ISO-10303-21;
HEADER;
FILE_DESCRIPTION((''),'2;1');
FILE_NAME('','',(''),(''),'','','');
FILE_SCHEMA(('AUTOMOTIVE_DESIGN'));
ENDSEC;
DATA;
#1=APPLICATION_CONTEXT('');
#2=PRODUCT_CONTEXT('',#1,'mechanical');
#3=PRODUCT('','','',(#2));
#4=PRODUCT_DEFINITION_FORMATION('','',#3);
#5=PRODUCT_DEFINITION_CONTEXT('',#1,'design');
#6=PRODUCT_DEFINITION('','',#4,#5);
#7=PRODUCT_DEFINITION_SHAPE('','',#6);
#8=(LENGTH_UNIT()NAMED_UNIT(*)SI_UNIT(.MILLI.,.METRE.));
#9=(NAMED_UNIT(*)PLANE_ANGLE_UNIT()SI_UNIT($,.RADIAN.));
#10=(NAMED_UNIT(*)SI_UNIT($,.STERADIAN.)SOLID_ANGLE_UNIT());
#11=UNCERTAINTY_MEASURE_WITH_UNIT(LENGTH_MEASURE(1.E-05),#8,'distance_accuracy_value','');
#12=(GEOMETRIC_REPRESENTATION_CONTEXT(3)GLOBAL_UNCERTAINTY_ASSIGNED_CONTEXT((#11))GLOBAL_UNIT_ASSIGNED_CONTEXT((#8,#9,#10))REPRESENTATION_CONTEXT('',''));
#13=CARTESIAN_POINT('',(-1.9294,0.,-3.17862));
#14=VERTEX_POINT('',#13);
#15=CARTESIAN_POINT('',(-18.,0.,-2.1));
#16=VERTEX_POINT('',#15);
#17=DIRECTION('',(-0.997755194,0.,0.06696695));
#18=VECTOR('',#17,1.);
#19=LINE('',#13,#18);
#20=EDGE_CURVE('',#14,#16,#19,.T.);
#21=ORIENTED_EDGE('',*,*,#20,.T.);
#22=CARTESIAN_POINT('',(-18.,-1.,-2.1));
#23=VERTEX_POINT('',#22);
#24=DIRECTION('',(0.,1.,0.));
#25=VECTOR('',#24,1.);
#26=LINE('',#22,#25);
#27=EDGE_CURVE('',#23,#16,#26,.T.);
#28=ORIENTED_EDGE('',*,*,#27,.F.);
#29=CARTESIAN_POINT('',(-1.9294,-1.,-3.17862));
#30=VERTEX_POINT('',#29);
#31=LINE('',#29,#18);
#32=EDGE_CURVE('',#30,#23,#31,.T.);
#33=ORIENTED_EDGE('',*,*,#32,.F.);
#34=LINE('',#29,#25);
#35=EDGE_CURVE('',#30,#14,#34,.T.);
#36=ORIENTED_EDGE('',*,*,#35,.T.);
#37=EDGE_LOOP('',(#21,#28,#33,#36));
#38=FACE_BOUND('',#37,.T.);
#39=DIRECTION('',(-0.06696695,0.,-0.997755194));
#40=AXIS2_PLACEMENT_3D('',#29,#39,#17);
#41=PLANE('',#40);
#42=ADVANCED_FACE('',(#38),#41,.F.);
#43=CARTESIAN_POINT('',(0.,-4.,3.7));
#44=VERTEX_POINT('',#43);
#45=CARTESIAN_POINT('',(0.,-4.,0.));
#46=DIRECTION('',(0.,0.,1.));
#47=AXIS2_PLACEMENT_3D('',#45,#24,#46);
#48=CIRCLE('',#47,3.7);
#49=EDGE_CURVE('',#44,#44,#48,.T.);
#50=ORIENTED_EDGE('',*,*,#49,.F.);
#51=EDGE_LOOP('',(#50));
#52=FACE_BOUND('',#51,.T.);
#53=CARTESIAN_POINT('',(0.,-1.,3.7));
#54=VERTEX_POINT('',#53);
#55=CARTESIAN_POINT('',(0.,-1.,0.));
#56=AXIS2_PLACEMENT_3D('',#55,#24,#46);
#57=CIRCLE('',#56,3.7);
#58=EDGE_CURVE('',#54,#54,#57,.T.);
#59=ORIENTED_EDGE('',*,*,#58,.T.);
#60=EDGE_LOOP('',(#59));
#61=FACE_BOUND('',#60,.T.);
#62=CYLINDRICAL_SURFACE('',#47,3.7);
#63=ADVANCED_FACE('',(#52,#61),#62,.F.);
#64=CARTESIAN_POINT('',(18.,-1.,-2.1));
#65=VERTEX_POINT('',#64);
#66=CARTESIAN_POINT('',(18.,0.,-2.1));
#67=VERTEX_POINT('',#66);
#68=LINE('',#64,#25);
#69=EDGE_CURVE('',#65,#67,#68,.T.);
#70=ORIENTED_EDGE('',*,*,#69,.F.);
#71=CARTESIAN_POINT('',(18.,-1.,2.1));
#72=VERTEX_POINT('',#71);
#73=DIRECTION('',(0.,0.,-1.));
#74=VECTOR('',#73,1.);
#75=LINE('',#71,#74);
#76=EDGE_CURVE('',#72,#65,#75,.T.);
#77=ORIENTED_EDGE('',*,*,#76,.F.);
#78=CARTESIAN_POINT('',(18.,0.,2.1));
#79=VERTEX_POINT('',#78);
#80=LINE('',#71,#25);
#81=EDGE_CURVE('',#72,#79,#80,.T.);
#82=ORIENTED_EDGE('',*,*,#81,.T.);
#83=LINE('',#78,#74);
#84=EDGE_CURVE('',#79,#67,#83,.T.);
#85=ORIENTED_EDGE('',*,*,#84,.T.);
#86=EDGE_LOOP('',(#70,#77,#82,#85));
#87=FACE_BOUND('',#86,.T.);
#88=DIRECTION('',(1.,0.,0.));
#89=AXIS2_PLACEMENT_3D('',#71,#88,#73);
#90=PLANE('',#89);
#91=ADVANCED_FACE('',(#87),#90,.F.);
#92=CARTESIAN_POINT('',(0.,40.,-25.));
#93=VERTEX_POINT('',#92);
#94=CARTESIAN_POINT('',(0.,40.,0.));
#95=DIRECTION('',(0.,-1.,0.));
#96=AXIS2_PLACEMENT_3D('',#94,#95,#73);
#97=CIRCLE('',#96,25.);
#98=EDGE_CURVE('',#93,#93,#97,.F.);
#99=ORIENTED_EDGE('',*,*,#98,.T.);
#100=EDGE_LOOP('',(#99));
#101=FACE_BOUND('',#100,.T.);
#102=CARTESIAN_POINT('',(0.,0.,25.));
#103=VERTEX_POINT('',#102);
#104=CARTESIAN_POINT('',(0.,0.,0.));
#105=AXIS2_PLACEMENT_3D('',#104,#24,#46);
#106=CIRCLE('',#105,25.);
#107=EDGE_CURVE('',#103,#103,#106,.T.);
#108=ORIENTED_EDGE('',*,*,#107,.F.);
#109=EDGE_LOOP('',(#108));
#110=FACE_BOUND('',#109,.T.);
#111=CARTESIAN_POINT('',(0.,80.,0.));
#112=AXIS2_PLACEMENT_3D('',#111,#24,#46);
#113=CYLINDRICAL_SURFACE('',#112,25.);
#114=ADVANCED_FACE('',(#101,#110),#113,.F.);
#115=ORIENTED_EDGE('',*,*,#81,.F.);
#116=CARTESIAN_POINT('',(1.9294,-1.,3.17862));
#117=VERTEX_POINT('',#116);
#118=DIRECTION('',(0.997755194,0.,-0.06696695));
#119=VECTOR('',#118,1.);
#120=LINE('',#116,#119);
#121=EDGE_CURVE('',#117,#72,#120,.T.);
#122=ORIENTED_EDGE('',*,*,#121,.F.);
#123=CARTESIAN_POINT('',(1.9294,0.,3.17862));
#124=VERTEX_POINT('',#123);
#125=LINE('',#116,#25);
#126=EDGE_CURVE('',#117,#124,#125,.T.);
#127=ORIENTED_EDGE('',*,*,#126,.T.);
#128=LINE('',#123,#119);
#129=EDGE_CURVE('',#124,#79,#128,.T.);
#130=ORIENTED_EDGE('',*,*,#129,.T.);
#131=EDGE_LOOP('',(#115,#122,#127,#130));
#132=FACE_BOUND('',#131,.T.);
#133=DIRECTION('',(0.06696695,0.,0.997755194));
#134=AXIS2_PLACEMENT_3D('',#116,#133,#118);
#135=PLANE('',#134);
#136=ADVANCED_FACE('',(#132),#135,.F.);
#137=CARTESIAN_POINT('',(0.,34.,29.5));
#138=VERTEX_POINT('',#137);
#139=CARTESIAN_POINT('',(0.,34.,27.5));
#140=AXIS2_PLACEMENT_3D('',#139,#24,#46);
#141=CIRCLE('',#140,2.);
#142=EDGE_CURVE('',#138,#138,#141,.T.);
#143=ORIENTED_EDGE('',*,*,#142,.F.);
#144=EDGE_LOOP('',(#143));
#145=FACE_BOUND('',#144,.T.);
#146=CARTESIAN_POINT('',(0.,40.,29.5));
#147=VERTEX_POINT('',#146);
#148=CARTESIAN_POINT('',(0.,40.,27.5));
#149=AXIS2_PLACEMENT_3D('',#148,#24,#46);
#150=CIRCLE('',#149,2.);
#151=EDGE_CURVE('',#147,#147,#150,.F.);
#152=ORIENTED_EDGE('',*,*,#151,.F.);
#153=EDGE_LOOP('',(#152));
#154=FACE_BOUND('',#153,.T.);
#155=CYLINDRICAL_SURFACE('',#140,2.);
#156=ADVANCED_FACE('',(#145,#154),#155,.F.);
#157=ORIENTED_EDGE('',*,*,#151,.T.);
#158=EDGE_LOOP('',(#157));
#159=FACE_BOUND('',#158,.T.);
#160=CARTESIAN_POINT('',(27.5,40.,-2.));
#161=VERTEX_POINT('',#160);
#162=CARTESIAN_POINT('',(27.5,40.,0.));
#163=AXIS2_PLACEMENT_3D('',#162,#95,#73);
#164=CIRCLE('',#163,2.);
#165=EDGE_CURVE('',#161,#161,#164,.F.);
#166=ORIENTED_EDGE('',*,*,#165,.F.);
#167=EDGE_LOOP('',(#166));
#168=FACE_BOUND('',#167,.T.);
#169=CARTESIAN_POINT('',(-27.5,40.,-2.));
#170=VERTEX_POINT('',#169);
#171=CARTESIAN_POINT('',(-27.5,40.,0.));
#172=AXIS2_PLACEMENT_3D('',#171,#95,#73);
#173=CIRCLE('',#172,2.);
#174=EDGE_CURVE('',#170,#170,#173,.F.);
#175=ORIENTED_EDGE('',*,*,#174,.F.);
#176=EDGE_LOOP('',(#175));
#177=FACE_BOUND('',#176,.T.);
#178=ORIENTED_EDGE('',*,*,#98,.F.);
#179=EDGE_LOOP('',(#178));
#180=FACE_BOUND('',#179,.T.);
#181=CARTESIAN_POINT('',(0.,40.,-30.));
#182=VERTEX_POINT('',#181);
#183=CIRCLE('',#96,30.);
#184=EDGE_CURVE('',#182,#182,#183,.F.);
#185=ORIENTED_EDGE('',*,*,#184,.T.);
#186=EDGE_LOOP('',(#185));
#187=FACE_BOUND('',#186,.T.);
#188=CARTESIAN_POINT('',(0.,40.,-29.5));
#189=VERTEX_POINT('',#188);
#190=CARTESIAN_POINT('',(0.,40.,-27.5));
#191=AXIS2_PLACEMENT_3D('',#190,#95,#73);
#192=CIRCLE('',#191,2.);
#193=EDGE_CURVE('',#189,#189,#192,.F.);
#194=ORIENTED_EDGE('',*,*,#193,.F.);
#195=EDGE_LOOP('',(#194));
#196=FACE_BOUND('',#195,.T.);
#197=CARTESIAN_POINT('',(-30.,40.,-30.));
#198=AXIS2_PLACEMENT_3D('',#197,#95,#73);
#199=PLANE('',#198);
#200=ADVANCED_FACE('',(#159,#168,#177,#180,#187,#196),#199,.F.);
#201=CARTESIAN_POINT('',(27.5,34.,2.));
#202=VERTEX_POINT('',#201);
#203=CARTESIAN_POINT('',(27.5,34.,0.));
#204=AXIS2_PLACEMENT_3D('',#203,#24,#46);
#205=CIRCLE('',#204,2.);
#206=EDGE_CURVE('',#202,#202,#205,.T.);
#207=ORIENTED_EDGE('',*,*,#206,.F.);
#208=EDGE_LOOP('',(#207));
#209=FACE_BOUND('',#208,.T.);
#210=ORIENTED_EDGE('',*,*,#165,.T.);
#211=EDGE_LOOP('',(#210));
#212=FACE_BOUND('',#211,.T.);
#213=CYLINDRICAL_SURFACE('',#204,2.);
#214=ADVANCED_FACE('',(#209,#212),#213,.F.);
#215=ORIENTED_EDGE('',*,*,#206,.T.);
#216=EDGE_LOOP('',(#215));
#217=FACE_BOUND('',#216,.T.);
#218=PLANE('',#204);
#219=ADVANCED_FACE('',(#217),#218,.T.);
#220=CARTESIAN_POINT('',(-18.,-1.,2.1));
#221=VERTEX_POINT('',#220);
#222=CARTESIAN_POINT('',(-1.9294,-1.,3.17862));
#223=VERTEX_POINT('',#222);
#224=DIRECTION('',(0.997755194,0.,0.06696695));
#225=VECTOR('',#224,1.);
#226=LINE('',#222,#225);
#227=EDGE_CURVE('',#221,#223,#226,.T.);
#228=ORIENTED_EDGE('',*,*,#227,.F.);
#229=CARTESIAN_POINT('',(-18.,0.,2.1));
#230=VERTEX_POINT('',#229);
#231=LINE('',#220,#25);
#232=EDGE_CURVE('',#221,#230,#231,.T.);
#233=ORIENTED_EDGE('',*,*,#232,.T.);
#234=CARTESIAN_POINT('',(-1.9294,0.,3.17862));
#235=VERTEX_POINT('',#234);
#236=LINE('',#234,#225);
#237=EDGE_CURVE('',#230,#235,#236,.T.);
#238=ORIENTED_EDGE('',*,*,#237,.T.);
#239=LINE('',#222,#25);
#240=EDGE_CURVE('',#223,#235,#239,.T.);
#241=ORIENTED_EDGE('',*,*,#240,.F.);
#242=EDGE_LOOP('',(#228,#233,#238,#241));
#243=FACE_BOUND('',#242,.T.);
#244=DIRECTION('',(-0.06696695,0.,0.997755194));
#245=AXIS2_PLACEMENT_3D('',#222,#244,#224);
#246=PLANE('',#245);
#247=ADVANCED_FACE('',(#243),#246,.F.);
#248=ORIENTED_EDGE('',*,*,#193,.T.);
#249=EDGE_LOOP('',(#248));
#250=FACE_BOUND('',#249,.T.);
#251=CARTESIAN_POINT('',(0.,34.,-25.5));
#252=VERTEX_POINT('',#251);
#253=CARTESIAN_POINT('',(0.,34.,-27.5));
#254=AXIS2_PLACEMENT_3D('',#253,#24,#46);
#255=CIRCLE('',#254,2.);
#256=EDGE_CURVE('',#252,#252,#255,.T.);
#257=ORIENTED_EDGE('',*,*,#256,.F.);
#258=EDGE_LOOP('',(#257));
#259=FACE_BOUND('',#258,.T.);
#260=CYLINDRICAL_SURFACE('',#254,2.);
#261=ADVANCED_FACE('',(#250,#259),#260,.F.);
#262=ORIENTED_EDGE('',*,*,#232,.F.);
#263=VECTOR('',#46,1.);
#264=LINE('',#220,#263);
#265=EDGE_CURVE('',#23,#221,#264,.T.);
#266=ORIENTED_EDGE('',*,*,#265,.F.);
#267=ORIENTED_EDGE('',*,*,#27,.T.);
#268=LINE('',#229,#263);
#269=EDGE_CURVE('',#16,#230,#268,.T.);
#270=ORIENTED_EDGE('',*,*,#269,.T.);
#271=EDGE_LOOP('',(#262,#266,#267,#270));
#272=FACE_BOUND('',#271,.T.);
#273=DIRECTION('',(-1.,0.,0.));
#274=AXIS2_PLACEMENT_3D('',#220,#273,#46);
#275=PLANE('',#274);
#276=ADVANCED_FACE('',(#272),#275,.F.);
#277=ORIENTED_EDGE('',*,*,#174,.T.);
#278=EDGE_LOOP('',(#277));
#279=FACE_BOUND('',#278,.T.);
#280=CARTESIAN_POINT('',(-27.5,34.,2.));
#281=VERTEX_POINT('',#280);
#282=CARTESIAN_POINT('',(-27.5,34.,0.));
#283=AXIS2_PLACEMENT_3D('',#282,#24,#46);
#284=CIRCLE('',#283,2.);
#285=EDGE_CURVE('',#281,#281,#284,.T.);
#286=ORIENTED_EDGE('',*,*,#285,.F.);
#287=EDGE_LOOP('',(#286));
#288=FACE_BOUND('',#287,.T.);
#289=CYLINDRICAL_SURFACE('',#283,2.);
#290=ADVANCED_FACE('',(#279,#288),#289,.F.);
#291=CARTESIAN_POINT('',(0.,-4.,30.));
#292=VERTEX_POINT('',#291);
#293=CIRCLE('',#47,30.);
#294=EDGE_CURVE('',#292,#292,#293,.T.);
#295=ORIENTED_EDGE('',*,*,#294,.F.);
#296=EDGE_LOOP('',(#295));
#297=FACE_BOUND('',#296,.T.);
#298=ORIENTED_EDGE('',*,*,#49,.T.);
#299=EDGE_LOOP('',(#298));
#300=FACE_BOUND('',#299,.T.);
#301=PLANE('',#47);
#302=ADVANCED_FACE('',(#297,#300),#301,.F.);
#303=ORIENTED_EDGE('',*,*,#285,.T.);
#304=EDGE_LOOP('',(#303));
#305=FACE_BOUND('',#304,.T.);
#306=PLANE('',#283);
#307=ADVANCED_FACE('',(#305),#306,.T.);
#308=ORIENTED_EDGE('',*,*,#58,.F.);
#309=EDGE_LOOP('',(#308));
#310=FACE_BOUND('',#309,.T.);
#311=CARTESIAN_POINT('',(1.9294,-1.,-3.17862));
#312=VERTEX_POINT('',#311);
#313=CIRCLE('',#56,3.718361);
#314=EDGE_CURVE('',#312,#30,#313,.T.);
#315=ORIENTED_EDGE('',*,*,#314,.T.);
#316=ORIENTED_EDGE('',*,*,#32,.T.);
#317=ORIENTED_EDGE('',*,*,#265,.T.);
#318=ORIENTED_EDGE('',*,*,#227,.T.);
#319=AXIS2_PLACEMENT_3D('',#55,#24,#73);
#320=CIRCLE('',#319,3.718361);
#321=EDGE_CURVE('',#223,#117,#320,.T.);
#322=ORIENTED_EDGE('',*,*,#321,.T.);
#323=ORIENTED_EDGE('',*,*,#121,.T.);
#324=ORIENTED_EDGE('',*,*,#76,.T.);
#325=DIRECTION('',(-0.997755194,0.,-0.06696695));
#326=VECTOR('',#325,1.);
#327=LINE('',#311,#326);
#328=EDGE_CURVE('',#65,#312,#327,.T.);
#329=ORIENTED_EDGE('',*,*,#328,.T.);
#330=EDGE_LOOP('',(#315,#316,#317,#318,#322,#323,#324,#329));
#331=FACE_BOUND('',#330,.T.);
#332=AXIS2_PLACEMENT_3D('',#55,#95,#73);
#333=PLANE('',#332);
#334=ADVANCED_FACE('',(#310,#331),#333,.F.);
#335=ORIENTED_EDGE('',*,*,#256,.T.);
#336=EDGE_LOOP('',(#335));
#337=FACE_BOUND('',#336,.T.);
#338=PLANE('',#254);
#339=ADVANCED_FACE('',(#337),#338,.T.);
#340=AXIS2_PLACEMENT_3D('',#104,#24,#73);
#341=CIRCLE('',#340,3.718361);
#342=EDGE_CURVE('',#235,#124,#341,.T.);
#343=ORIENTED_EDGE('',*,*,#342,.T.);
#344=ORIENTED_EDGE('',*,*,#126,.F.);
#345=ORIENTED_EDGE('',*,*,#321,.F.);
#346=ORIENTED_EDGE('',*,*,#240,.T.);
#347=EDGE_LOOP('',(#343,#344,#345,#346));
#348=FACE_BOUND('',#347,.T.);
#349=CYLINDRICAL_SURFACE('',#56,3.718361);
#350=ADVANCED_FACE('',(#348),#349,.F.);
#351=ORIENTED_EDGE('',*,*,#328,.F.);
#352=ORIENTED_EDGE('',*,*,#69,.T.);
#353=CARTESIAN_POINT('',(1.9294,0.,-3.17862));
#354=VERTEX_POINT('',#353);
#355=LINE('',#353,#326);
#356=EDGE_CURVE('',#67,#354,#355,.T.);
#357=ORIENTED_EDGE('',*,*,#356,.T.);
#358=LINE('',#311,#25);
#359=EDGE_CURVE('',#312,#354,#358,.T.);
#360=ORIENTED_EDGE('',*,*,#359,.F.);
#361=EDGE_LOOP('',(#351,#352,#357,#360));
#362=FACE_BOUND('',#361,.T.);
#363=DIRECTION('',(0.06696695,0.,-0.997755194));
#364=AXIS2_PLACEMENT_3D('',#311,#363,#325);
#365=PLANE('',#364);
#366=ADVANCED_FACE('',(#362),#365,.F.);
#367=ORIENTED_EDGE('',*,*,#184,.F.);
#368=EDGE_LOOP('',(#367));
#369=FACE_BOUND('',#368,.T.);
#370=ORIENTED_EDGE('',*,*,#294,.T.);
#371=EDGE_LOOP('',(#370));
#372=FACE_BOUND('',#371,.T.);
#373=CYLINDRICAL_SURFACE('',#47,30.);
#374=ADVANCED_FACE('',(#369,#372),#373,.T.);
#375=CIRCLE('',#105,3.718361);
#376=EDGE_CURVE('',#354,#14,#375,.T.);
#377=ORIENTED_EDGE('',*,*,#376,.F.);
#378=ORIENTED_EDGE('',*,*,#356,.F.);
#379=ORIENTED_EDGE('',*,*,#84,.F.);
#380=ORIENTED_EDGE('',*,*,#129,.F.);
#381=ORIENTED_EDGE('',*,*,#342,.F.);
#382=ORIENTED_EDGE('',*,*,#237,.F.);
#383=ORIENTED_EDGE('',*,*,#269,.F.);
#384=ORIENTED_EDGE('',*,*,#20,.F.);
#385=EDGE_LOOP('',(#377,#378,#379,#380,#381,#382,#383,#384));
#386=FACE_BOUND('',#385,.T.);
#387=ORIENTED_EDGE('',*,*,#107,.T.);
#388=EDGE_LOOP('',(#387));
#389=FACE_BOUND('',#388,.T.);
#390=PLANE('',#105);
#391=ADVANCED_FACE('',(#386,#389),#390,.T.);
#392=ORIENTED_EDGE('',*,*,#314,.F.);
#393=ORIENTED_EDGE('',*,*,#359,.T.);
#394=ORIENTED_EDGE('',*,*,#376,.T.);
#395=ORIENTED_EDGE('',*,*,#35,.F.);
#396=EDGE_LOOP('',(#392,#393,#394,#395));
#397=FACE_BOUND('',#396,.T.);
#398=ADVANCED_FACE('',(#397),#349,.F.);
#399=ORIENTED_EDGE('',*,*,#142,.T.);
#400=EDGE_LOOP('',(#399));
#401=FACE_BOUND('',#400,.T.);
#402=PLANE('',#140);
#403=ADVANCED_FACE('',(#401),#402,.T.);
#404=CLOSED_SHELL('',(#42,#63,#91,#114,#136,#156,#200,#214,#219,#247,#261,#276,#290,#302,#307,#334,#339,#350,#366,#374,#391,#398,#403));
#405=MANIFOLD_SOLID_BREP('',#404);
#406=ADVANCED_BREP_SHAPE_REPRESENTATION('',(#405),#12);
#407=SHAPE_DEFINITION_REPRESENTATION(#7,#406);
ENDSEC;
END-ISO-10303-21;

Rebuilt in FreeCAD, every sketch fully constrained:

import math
import FreeCAD as App
import Part
import Sketcher
from FreeCAD import Vector


def add_polygon(sketch, points):
    """Adds a closed chain of lines whose ends are joined by coincident constraints."""
    first, n = sketch.GeometryCount, len(points)
    for a, b in zip(points, points[1:] + points[:1]):
        sketch.addGeometry(Part.LineSegment(App.Vector(*a, 0), App.Vector(*b, 0)), False)
    for i in range(n):
        sketch.addConstraint(Sketcher.Constraint("Coincident", first + i, 2, first + (i + 1) % n, 1))

doc = App.newDocument("Part")
params = doc.addObject("Spreadsheet::Sheet", "Params")
for row, (alias, value) in enumerate([
    ("sketch1_diameter", "60 mm"),
    ("pad1_length", "4 mm"),
    ("sketch2_height", "4.2 mm"),
    ("pocket1_length", "1 mm"),
    ("sketch3_diameter", "7.4 mm"),
    ("pocket2_length", "3 mm"),
    ("sketch4_width", "5 mm"),
    ("sketch4_height", "80 mm"),
    ("revolution_angle", "360 deg"),
    ("sketch5_diameter", "4 mm"),
    ("pocket3_length", "46 mm"),
    ("sketch6_width", "60 mm"),
    ("sketch6_height", "40 mm"),
    ("pocket4_length", "30 mm"),
], start=1):
    params.set(f"A{row}", alias)
    params.set(f"B{row}", "=" + value)
    params.setAlias(f"B{row}", alias)

body = doc.addObject("PartDesign::Body", "Body")

sketch1 = body.newObject("Sketcher::SketchObject", "Sketch")
sketch1.AttachmentSupport = (doc.getObject("XZ_Plane"), [""])
sketch1.MapMode = "FlatFace"
sketch1.addGeometry(Part.Circle(Vector(0, 0, 0), Vector(0, 0, 1), 30), False)
sketch1.addConstraint([
    Sketcher.Constraint("Coincident", 0, 3, -1, 1),
    Sketcher.Constraint("Diameter", 0, 60.0),
])
sketch1.setExpression("Constraints[1]", "Params.sketch1_diameter")
pad1 = body.newObject("PartDesign::Pad", "Pad")
pad1.Profile = sketch1
pad1.setExpression("Length", "Params.pad1_length")

sketch2 = body.newObject("Sketcher::SketchObject", "Sketch001")
sketch2.AttachmentSupport = (doc.getObject("XZ_Plane"), [""])
sketch2.MapMode = "FlatFace"
sketch2.addGeometry([
    Part.LineSegment(Vector(18, 2.1, 0), Vector(18, -2.1, 0)),
    Part.LineSegment(Vector(18, -2.1, 0), Vector(1.9294, -3.17862, 0)),
    Part.ArcOfCircle(Part.Circle(Vector(0, 0, 0), Vector(0, 0, 1), 3.718361), math.radians(-121.257449), math.radians(-58.742551)),
    Part.LineSegment(Vector(-1.9294, -3.17862, 0), Vector(-18, -2.1, 0)),
    Part.LineSegment(Vector(-18, -2.1, 0), Vector(-18, 2.1, 0)),
    Part.LineSegment(Vector(-18, 2.1, 0), Vector(-1.9294, 3.17862, 0)),
    Part.ArcOfCircle(Part.Circle(Vector(0, 0, 0), Vector(0, 0, 1), 3.718361), math.radians(58.742551), math.radians(121.257449)),
    Part.LineSegment(Vector(1.9294, 3.17862, 0), Vector(18, 2.1, 0)),
], False)
sketch2.addConstraint([
    Sketcher.Constraint("Coincident", 0, 2, 1, 1),
    Sketcher.Constraint("Coincident", 1, 2, 2, 2),
    Sketcher.Constraint("Coincident", 2, 1, 3, 1),
    Sketcher.Constraint("Coincident", 3, 2, 4, 1),
    Sketcher.Constraint("Coincident", 4, 2, 5, 1),
    Sketcher.Constraint("Coincident", 5, 2, 6, 2),
    Sketcher.Constraint("Coincident", 6, 1, 7, 1),
    Sketcher.Constraint("Coincident", 7, 2, 0, 1),
    Sketcher.Constraint("Vertical", 0),
    Sketcher.Constraint("Vertical", 4),
    Sketcher.Constraint("Coincident", 2, 3, -1, 1),
    Sketcher.Constraint("Coincident", 6, 3, -1, 1),
    Sketcher.Constraint("Equal", 2, 6),
    Sketcher.Constraint("Symmetric", 0, 2, 4, 2, -1, 1),
    Sketcher.Constraint("Parallel", 1, 5),
    Sketcher.Constraint("Parallel", 3, 7),
    Sketcher.Constraint("Horizontal", 1, 2, 2, 1),
    Sketcher.Constraint("Horizontal", 0, 2, 3, 2),
    Sketcher.Constraint("Horizontal", 5, 2, 6, 1),
    Sketcher.Constraint("DistanceY", 0, 2, 0, 1, 4.2),
    Sketcher.Constraint("DistanceX", -1, 1, 0, 2, 18.0),
    Sketcher.Constraint("Radius", 2, 3.718361),
    Sketcher.Constraint("DistanceX", -1, 1, 1, 2, 1.9294),
])
sketch2.setExpression("Constraints[19]", "Params.sketch2_height")
pocket1 = body.newObject("PartDesign::Pocket", "Pocket")
pocket1.Profile = sketch2
pocket1.setExpression("Length", "Params.pocket1_length")
pocket1.Reversed = True

sketch3 = body.newObject("Sketcher::SketchObject", "Sketch002")
sketch3.AttachmentSupport = (doc.getObject("XZ_Plane"), [""])
sketch3.MapMode = "FlatFace"
sketch3.AttachmentOffset = App.Placement(Vector(0, 0, 1), App.Rotation())
sketch3.addGeometry(Part.Circle(Vector(0, 0, 0), Vector(0, 0, 1), 3.7), False)
sketch3.addConstraint([
    Sketcher.Constraint("Coincident", 0, 3, -1, 1),
    Sketcher.Constraint("Diameter", 0, 7.4),
])
sketch3.setExpression("Constraints[1]", "Params.sketch3_diameter")
pocket2 = body.newObject("PartDesign::Pocket", "Pocket001")
pocket2.Profile = sketch3
pocket2.setExpression("Length", "Params.pocket2_length")
pocket2.Reversed = True

sketch4 = body.newObject("Sketcher::SketchObject", "Sketch003")
sketch4.AttachmentSupport = (doc.getObject("XY_Plane"), [""])
sketch4.MapMode = "FlatFace"
add_polygon(sketch4, [(25, 80), (25, 0), (30, 0), (30, 80)])
sketch4.addConstraint([
    Sketcher.Constraint("Vertical", 0),
    Sketcher.Constraint("Horizontal", 1),
    Sketcher.Constraint("Vertical", 2),
    Sketcher.Constraint("Horizontal", 3),
    Sketcher.Constraint("PointOnObject", 0, 2, -1),
    Sketcher.Constraint("DistanceX", 1, 1, 1, 2, 5.0),
    Sketcher.Constraint("DistanceY", 0, 2, 0, 1, 80.0),
    Sketcher.Constraint("DistanceX", -1, 1, 0, 2, 25.0),
])
sketch4.setExpression("Constraints[9]", "Params.sketch4_width")
sketch4.setExpression("Constraints[10]", "Params.sketch4_height")
revolution = body.newObject("PartDesign::Revolution", "Revolution")
revolution.Profile = sketch4
revolution.ReferenceAxis = (sketch4, ["V_Axis"])
revolution.setExpression("Angle", "Params.revolution_angle")

sketch5 = body.newObject("Sketcher::SketchObject", "Sketch004")
sketch5.AttachmentSupport = (doc.getObject("XZ_Plane"), [""])
sketch5.MapMode = "FlatFace"
sketch5.AttachmentOffset = App.Placement(Vector(0, 0, -80), App.Rotation())
sketch5.addGeometry([
    Part.Circle(Vector(27.5, 0, 0), Vector(0, 0, 1), 2),
    Part.Circle(Vector(0, 27.5, 0), Vector(0, 0, 1), 2),
    Part.Circle(Vector(-27.5, 0, 0), Vector(0, 0, 1), 2),
    Part.Circle(Vector(0, -27.5, 0), Vector(0, 0, 1), 2),
], False)
sketch5.addConstraint([
    Sketcher.Constraint("Equal", 0, 1),
    Sketcher.Constraint("Equal", 1, 2),
    Sketcher.Constraint("Equal", 2, 3),
    Sketcher.Constraint("Symmetric", 0, 3, 2, 3, -1, 1),
    Sketcher.Constraint("Symmetric", 1, 3, 3, 3, -1, 1),
    Sketcher.Constraint("PointOnObject", 0, 3, -1),
    Sketcher.Constraint("PointOnObject", 1, 3, -2),
    Sketcher.Constraint("Diameter", 0, 4.0),
    Sketcher.Constraint("DistanceX", 2, 3, 0, 3, 55.0),
    Sketcher.Constraint("DistanceY", 3, 3, 1, 3, 55.0),
])
sketch5.setExpression("Constraints[7]", "Params.sketch5_diameter")
pocket3 = body.newObject("PartDesign::Pocket", "Pocket002")
pocket3.Profile = sketch5
pocket3.setExpression("Length", "Params.pocket3_length")
pocket3.Reversed = True

sketch6 = body.newObject("Sketcher::SketchObject", "Sketch005")
sketch6.AttachmentSupport = (doc.getObject("XY_Plane"), [""])
sketch6.MapMode = "FlatFace"
add_polygon(sketch6, [(-30, 80), (-30, 40), (30, 40), (30, 80)])
sketch6.addConstraint([
    Sketcher.Constraint("Vertical", 0),
    Sketcher.Constraint("Horizontal", 1),
    Sketcher.Constraint("Vertical", 2),
    Sketcher.Constraint("Horizontal", 3),
    Sketcher.Constraint("DistanceX", 1, 1, 1, 2, 60.0),
    Sketcher.Constraint("DistanceY", 0, 2, 0, 1, 40.0),
    Sketcher.Constraint("DistanceX", 0, 2, -1, 1, 30.0),
    Sketcher.Constraint("DistanceY", -1, 1, 0, 2, 40.0),
])
sketch6.setExpression("Constraints[8]", "Params.sketch6_width")
sketch6.setExpression("Constraints[9]", "Params.sketch6_height")
pocket4 = body.newObject("PartDesign::Pocket", "Pocket003")
pocket4.Profile = sketch6
pocket4.setExpression("Length", "Params.pocket4_length")
doc.recompute()

mirrored = body.newObject("PartDesign::Mirrored", "Mirrored")
mirrored.Originals = [pocket4]
mirrored.MirrorPlane = (doc.getObject("XY_Plane"), [""])
body.Tip = mirrored

doc.recompute()
